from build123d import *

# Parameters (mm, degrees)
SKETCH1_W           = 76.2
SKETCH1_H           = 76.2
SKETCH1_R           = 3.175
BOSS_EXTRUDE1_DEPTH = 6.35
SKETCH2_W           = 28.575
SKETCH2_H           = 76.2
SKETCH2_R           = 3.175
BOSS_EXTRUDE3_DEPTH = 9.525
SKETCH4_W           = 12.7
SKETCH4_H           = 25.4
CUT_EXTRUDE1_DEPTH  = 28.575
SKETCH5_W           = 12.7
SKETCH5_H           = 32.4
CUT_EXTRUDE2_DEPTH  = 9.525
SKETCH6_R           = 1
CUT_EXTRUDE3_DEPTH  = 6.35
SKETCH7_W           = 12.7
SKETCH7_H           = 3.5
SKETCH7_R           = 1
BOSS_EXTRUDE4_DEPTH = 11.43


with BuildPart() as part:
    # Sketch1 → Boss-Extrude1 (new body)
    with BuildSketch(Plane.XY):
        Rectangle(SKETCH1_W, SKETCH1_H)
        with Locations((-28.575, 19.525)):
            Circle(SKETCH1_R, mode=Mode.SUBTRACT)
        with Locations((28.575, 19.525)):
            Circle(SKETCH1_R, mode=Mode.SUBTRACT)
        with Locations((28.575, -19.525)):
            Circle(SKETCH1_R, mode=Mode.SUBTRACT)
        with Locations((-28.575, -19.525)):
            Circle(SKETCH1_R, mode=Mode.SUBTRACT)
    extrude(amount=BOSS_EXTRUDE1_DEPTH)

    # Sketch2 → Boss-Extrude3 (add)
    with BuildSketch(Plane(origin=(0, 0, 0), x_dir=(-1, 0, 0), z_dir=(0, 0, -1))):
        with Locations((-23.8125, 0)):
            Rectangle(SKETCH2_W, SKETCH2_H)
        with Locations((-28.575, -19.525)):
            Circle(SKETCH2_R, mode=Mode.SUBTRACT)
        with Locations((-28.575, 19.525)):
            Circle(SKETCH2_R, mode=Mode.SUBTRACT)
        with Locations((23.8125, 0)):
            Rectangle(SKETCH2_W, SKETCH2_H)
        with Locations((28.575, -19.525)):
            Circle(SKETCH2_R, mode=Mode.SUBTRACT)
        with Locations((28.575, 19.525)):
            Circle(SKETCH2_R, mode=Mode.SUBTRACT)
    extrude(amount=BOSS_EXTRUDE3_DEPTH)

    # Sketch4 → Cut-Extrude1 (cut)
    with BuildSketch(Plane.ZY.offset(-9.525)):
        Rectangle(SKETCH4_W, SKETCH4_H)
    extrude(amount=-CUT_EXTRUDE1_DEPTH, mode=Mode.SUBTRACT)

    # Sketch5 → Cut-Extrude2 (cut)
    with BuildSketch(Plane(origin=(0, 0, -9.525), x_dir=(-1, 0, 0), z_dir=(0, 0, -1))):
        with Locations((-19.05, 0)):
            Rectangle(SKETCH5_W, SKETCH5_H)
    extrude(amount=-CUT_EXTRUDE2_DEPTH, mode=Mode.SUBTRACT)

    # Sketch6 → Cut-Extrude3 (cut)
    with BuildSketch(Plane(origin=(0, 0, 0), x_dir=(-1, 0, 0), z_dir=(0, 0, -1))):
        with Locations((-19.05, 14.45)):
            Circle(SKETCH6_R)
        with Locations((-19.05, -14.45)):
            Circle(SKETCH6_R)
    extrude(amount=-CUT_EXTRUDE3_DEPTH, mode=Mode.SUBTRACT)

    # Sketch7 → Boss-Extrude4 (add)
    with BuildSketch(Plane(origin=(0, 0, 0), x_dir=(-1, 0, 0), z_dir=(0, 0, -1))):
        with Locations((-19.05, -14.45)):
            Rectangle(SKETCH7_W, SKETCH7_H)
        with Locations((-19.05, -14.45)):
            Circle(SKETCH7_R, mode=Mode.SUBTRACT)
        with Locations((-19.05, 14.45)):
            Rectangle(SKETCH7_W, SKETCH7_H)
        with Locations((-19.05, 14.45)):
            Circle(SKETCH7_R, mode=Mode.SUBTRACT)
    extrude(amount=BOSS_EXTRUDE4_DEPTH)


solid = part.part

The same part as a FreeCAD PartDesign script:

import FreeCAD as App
import Part
import Sketcher
from FreeCAD import Vector
Q = App.Units.Quantity

doc = App.newDocument("Part")
body = doc.addObject("PartDesign::Body", "Body")

sketch1 = body.newObject("Sketcher::SketchObject", "Sketch")
sketch1.AttachmentSupport = (doc.getObject("XY_Plane"), [""])
sketch1.MapMode = "FlatFace"
sketch1.addGeometry([
    Part.LineSegment(Vector(-38.1, 38.1, 0), Vector(-38.1, -38.1, 0)),
    Part.LineSegment(Vector(-38.1, -38.1, 0), Vector(38.1, -38.1, 0)),
    Part.LineSegment(Vector(38.1, -38.1, 0), Vector(38.1, 38.1, 0)),
    Part.LineSegment(Vector(38.1, 38.1, 0), Vector(-38.1, 38.1, 0)),
    Part.Circle(Vector(-28.6, -19.5, 0), Vector(0, 0, 1), 3.2),
    Part.Circle(Vector(28.6, -19.5, 0), Vector(0, 0, 1), 3.2),
    Part.Circle(Vector(-28.6, 19.5, 0), Vector(0, 0, 1), 3.2),
    Part.Circle(Vector(28.6, 19.5, 0), Vector(0, 0, 1), 3.2),
], False)
sketch1.addConstraint([
    Sketcher.Constraint("Coincident", 0, 2, 1, 1),
    Sketcher.Constraint("Coincident", 1, 2, 2, 1),
    Sketcher.Constraint("Coincident", 2, 2, 3, 1),
    Sketcher.Constraint("Coincident", 3, 2, 0, 1),
    Sketcher.Constraint("Vertical", 0),
    Sketcher.Constraint("Horizontal", 1),
    Sketcher.Constraint("Vertical", 2),
    Sketcher.Constraint("Horizontal", 3),
    Sketcher.Constraint("Equal", 4, 5),
    Sketcher.Constraint("Equal", 5, 6),
    Sketcher.Constraint("Equal", 6, 7),
    Sketcher.Constraint("Symmetric", 5, 3, 6, 3, -1, 1),
    Sketcher.Constraint("Symmetric", 4, 3, 7, 3, -1, 1),
    Sketcher.Constraint("Symmetric", 0, 2, 2, 2, -1, 1),
    Sketcher.Constraint("Symmetric", 4, 3, 5, 3, -2),
    Sketcher.Constraint("Equal", 3, 0),
    Sketcher.Constraint("Diameter", 4, Q("0.25 in")),
    Sketcher.Constraint("DistanceX", 1, 1, 1, 2, Q("3 in")),
    Sketcher.Constraint("DistanceX", 4, 3, 5, 3, Q("2.25 in")),
    Sketcher.Constraint("DistanceY", 4, 3, -1, 1, 19.525),
])
pad1 = body.newObject("PartDesign::Pad", "Pad")
pad1.Profile = sketch1
pad1.Length = Q("0.25 in")

sketch2 = body.newObject("Sketcher::SketchObject", "Sketch001")
sketch2.AttachmentSupport = (doc.getObject("XY_Plane"), [""])
sketch2.MapMode = "FlatFace"
sketch2.addGeometry([
    Part.LineSegment(Vector(38.1, 38.1, 0), Vector(38.1, -38.1, 0)),
    Part.LineSegment(Vector(38.1, -38.1, 0), Vector(9.5, -38.1, 0)),
    Part.LineSegment(Vector(9.5, -38.1, 0), Vector(9.5, 38.1, 0)),
    Part.LineSegment(Vector(9.5, 38.1, 0), Vector(38.1, 38.1, 0)),
    Part.Circle(Vector(28.6, -19.5, 0), Vector(0, 0, 1), 3.2),
    Part.Circle(Vector(28.6, 19.5, 0), Vector(0, 0, 1), 3.2),
    Part.LineSegment(Vector(-9.5, 38.1, 0), Vector(-9.5, -38.1, 0)),
    Part.LineSegment(Vector(-9.5, -38.1, 0), Vector(-38.1, -38.1, 0)),
    Part.LineSegment(Vector(-38.1, -38.1, 0), Vector(-38.1, 38.1, 0)),
    Part.LineSegment(Vector(-38.1, 38.1, 0), Vector(-9.5, 38.1, 0)),
    Part.Circle(Vector(-28.6, -19.5, 0), Vector(0, 0, 1), 3.2),
    Part.Circle(Vector(-28.6, 19.5, 0), Vector(0, 0, 1), 3.2),
], False)
sketch2.addConstraint([
    Sketcher.Constraint("Coincident", 0, 2, 1, 1),
    Sketcher.Constraint("Coincident", 1, 2, 2, 1),
    Sketcher.Constraint("Coincident", 2, 2, 3, 1),
    Sketcher.Constraint("Coincident", 3, 2, 0, 1),
    Sketcher.Constraint("Coincident", 6, 2, 7, 1),
    Sketcher.Constraint("Coincident", 7, 2, 8, 1),
    Sketcher.Constraint("Coincident", 8, 2, 9, 1),
    Sketcher.Constraint("Coincident", 9, 2, 6, 1),
    Sketcher.Constraint("Vertical", 0),
    Sketcher.Constraint("Horizontal", 1),
    Sketcher.Constraint("Vertical", 2),
    Sketcher.Constraint("Horizontal", 3),
    Sketcher.Constraint("Vertical", 6),
    Sketcher.Constraint("Horizontal", 7),
    Sketcher.Constraint("Vertical", 8),
    Sketcher.Constraint("Horizontal", 9),
    Sketcher.Constraint("Equal", 4, 5),
    Sketcher.Constraint("Equal", 5, 10),
    Sketcher.Constraint("Equal", 10, 11),
    Sketcher.Constraint("Symmetric", 5, 3, 10, 3, -1, 1),
    Sketcher.Constraint("Symmetric", 4, 3, 11, 3, -1, 1),
    Sketcher.Constraint("Symmetric", 2, 2, 6, 2, -1, 1),
    Sketcher.Constraint("Symmetric", 0, 2, 8, 2, -1, 1),
    Sketcher.Constraint("Symmetric", 4, 3, 10, 3, -2),
    Sketcher.Constraint("Horizontal", 1, 2, 6, 2),
    Sketcher.Constraint("Diameter", 4, Q("0.25 in")),
    Sketcher.Constraint("DistanceY", 0, 2, 0, 1, Q("3 in")),
    Sketcher.Constraint("DistanceX", 8, 2, 3, 2, Q("3 in")),
    Sketcher.Constraint("DistanceX", 10, 3, 1, 2, Q("1.5 in")),
    Sketcher.Constraint("DistanceX", 1, 2, 1, 1, Q("1.125 in")),
    Sketcher.Constraint("DistanceY", 4, 3, -1, 1, 19.525),
])
pad2 = body.newObject("PartDesign::Pad", "Pad001")
pad2.Profile = sketch2
pad2.Length = Q("0.375 in")
pad2.Reversed = True

sketch3 = body.newObject("Sketcher::SketchObject", "Sketch002")
sketch3.AttachmentSupport = (doc.getObject("YZ_Plane"), [""])
sketch3.MapMode = "FlatFace"
sketch3.AttachmentOffset = App.Placement(Vector(0, 0, 0.375 * 25.4), App.Rotation())
sketch3.addGeometry([
    Part.LineSegment(Vector(13, -6, 0), Vector(-13, -6, 0)),
    Part.LineSegment(Vector(-13, -6, 0), Vector(-13, 6, 0)),
    Part.LineSegment(Vector(-13, 6, 0), Vector(13, 6, 0)),
    Part.LineSegment(Vector(13, 6, 0), Vector(13, -6, 0)),
], False)
sketch3.addConstraint([
    Sketcher.Constraint("Coincident", 0, 2, 1, 1),
    Sketcher.Constraint("Coincident", 1, 2, 2, 1),
    Sketcher.Constraint("Coincident", 2, 2, 3, 1),
    Sketcher.Constraint("Coincident", 3, 2, 0, 1),
    Sketcher.Constraint("Horizontal", 0),
    Sketcher.Constraint("Vertical", 1),
    Sketcher.Constraint("Horizontal", 2),
    Sketcher.Constraint("Vertical", 3),
    Sketcher.Constraint("Symmetric", 0, 2, 2, 2, -1, 1),
    Sketcher.Constraint("DistanceX", 0, 2, 0, 1, Q("1 in")),
    Sketcher.Constraint("DistanceY", 1, 1, 1, 2, Q("0.5 in")),
])
pocket1 = body.newObject("PartDesign::Pocket", "Pocket")
pocket1.Profile = sketch3
pocket1.Length = Q("1.125 in")
pocket1.Reversed = True

sketch4 = body.newObject("Sketcher::SketchObject", "Sketch003")
sketch4.AttachmentSupport = (doc.getObject("XY_Plane"), [""])
sketch4.MapMode = "FlatFace"
sketch4.AttachmentOffset = App.Placement(Vector(0, 0, -0.375 * 25.4), App.Rotation())
sketch4.addGeometry([
    Part.LineSegment(Vector(25, 16, 0), Vector(25, -16, 0)),
    Part.LineSegment(Vector(25, -16, 0), Vector(13, -16, 0)),
    Part.LineSegment(Vector(13, -16, 0), Vector(13, 16, 0)),
    Part.LineSegment(Vector(13, 16, 0), Vector(25, 16, 0)),
], False)
sketch4.addConstraint([
    Sketcher.Constraint("Coincident", 0, 2, 1, 1),
    Sketcher.Constraint("Coincident", 1, 2, 2, 1),
    Sketcher.Constraint("Coincident", 2, 2, 3, 1),
    Sketcher.Constraint("Coincident", 3, 2, 0, 1),
    Sketcher.Constraint("Vertical", 0),
    Sketcher.Constraint("Horizontal", 1),
    Sketcher.Constraint("Vertical", 2),
    Sketcher.Constraint("Horizontal", 3),
    Sketcher.Constraint("DistanceX", 1, 2, 1, 1, Q("0.5 in")),
    Sketcher.Constraint("DistanceX", -1, 1, 0, 2, Q("1 in")),
    Sketcher.Constraint("DistanceY", 0, 2, 0, 1, 32.4),
    Sketcher.Constraint("DistanceY", 0, 2, -1, 1, 16.2),
])
pocket2 = body.newObject("PartDesign::Pocket", "Pocket001")
pocket2.Profile = sketch4
pocket2.Length = Q("0.375 in")
pocket2.Reversed = True

sketch5 = body.newObject("Sketcher::SketchObject", "Sketch004")
sketch5.AttachmentSupport = (doc.getObject("XY_Plane"), [""])
sketch5.MapMode = "FlatFace"
sketch5.addGeometry([
    Part.Circle(Vector(19.1, 14.4, 0), Vector(0, 0, 1), 1),
    Part.Circle(Vector(19.1, -14.4, 0), Vector(0, 0, 1), 1),
], False)
sketch5.addConstraint([
    Sketcher.Constraint("Equal", 0, 1),
    Sketcher.Constraint("Symmetric", 0, 3, 1, 3, -1),
    Sketcher.Constraint("Diameter", 0, 2.0),
    Sketcher.Constraint("DistanceX", -1, 1, 0, 3, Q("0.75 in")),
    Sketcher.Constraint("DistanceY", -1, 1, 0, 3, 14.45),
])
pocket3 = body.newObject("PartDesign::Pocket", "Pocket002")
pocket3.Profile = sketch5
pocket3.Length = Q("0.25 in")
pocket3.Reversed = True

sketch6 = body.newObject("Sketcher::SketchObject", "Sketch005")
sketch6.AttachmentSupport = (doc.getObject("XY_Plane"), [""])
sketch6.MapMode = "FlatFace"
sketch6.addGeometry([
    Part.LineSegment(Vector(25.4, -12.7, 0), Vector(25.4, -16.2, 0)),
    Part.LineSegment(Vector(25.4, -16.2, 0), Vector(12.7, -16.2, 0)),
    Part.LineSegment(Vector(12.7, -16.2, 0), Vector(12.7, -12.7, 0)),
    Part.LineSegment(Vector(12.7, -12.7, 0), Vector(25.4, -12.7, 0)),
    Part.Circle(Vector(19.1, -14.4, 0), Vector(0, 0, 1), 1),
    Part.LineSegment(Vector(25.4, 16.2, 0), Vector(25.4, 12.7, 0)),
    Part.LineSegment(Vector(25.4, 12.7, 0), Vector(12.7, 12.7, 0)),
    Part.LineSegment(Vector(12.7, 12.7, 0), Vector(12.7, 16.2, 0)),
    Part.LineSegment(Vector(12.7, 16.2, 0), Vector(25.4, 16.2, 0)),
    Part.Circle(Vector(19.1, 14.4, 0), Vector(0, 0, 1), 1),
], False)
sketch6.addConstraint([
    Sketcher.Constraint("Coincident", 0, 2, 1, 1),
    Sketcher.Constraint("Coincident", 1, 2, 2, 1),
    Sketcher.Constraint("Coincident", 2, 2, 3, 1),
    Sketcher.Constraint("Coincident", 3, 2, 0, 1),
    Sketcher.Constraint("Coincident", 5, 2, 6, 1),
    Sketcher.Constraint("Coincident", 6, 2, 7, 1),
    Sketcher.Constraint("Coincident", 7, 2, 8, 1),
    Sketcher.Constraint("Coincident", 8, 2, 5, 1),
    Sketcher.Constraint("Vertical", 0),
    Sketcher.Constraint("Horizontal", 1),
    Sketcher.Constraint("Vertical", 2),
    Sketcher.Constraint("Horizontal", 3),
    Sketcher.Constraint("Vertical", 5),
    Sketcher.Constraint("Horizontal", 6),
    Sketcher.Constraint("Vertical", 7),
    Sketcher.Constraint("Horizontal", 8),
    Sketcher.Constraint("Equal", 4, 9),
    Sketcher.Constraint("Symmetric", 4, 3, 9, 3, -1),
    Sketcher.Constraint("Symmetric", 3, 2, 5, 2, -1),
    Sketcher.Constraint("Symmetric", 1, 2, 7, 2, -1),
    Sketcher.Constraint("DistanceX", 1, 2, 1, 1, Q("0.5 in")),
    Sketcher.Constraint("DistanceX", -1, 1, 0, 2, Q("1 in")),
    Sketcher.Constraint("DistanceY", 3, 2, 5, 2, Q("1 in")),
    Sketcher.Constraint("Diameter", 4, 2.0),
    Sketcher.Constraint("DistanceX", -1, 1, 4, 3, Q("0.75 in")),
    Sketcher.Constraint("DistanceY", 0, 2, 0, 1, 3.5),
    Sketcher.Constraint("DistanceY", 4, 3, -1, 1, 14.45),
])
pad3 = body.newObject("PartDesign::Pad", "Pad002")
pad3.Profile = sketch6
pad3.Length = Q("0.45 in")
pad3.Reversed = True

doc.recompute()
